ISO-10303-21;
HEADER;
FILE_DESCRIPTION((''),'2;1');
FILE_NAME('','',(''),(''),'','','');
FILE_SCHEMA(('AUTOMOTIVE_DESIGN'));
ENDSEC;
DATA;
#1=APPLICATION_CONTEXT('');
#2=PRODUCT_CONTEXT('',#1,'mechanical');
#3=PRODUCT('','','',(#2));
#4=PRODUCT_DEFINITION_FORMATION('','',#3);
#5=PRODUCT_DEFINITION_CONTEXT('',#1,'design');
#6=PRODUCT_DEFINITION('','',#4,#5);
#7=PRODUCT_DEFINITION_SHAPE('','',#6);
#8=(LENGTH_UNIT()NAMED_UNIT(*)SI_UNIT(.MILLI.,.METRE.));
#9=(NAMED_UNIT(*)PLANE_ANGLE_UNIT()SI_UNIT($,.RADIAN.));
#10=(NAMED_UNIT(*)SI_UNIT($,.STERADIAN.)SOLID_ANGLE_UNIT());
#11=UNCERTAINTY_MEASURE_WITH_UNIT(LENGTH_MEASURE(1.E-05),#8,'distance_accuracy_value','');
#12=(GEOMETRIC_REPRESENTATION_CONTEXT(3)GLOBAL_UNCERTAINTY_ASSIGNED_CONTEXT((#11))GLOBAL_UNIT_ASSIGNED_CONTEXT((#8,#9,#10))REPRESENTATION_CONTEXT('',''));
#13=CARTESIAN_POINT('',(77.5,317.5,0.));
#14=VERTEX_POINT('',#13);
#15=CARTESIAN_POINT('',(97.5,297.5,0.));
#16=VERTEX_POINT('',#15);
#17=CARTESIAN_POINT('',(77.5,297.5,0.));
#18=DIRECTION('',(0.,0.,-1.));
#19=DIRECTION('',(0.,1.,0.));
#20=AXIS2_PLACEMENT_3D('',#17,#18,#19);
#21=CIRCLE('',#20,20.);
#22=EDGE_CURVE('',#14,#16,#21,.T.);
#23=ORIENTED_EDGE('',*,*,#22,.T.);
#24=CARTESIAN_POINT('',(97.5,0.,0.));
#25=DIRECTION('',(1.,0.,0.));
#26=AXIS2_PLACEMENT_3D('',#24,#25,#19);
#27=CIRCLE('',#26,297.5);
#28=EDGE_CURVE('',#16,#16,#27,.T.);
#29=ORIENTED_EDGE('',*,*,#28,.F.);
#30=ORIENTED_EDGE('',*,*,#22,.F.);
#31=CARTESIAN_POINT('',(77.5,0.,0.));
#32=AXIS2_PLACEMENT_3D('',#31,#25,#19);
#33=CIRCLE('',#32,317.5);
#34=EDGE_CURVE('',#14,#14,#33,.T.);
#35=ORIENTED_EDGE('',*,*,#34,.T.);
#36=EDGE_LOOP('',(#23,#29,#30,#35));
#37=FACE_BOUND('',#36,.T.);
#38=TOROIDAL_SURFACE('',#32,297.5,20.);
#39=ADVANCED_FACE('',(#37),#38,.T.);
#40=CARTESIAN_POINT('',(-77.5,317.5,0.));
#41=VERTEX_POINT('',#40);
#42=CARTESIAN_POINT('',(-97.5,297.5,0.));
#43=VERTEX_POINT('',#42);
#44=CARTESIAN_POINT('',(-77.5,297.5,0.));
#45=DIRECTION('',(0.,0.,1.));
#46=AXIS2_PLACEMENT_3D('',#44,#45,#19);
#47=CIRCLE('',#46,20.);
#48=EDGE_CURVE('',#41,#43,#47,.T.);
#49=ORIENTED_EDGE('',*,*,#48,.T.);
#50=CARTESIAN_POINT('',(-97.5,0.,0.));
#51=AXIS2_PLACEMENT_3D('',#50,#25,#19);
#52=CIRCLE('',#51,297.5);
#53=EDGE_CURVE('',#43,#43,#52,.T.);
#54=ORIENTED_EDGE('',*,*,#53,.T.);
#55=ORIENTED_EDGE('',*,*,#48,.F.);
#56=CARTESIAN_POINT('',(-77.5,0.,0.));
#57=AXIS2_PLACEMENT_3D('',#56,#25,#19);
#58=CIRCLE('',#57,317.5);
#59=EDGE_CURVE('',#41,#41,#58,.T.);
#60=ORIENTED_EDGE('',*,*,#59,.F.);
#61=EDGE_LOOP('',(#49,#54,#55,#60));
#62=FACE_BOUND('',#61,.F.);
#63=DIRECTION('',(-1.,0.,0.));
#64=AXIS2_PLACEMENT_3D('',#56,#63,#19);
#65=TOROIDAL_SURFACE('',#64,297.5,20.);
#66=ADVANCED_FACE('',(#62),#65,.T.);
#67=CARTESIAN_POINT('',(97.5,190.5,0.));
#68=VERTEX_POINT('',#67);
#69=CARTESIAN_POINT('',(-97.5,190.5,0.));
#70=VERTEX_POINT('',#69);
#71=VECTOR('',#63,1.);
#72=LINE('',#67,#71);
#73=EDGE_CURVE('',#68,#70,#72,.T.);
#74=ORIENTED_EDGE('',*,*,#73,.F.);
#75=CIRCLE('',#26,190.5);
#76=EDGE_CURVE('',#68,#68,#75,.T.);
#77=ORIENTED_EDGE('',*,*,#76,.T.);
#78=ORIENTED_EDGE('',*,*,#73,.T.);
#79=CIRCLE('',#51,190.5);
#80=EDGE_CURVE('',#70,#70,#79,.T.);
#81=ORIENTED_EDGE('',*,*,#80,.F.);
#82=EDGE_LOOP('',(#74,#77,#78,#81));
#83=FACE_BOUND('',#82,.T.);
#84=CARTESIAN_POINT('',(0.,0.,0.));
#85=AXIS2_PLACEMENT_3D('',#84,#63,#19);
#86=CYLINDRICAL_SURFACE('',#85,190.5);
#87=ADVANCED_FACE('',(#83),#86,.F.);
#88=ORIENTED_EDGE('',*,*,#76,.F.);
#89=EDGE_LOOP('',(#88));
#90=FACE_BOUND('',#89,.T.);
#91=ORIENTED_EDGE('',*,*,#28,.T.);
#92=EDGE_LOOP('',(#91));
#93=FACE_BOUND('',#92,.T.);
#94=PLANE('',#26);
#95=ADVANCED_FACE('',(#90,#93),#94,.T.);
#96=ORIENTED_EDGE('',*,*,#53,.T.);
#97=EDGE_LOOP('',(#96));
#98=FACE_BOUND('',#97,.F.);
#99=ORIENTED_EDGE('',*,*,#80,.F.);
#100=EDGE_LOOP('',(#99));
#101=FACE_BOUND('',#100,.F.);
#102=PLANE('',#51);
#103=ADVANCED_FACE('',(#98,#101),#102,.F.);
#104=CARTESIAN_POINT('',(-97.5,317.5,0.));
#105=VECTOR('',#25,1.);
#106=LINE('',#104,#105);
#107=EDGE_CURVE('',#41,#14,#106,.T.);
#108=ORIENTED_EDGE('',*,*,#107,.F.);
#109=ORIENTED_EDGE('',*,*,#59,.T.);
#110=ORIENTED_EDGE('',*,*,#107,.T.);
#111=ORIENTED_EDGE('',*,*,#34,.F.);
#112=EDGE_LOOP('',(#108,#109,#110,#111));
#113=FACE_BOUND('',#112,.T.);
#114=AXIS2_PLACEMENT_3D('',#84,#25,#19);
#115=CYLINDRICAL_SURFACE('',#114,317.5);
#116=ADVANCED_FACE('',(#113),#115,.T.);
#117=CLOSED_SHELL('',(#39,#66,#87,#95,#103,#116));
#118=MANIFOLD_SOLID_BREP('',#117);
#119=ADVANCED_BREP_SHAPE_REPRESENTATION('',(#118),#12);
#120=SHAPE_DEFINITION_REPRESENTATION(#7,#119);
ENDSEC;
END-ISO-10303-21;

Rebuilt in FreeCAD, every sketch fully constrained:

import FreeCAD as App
import Part
import Sketcher
from FreeCAD import Vector


def edges_at(feature, points):
    """Names of the edges that pass closest to the given points."""
    edges = feature.Shape.Edges
    near = lambda p: min(range(len(edges)), key=lambda i: edges[i].distToShape(Part.Vertex(*p))[0])
    return sorted({f"Edge{near(p) + 1}" for p in points})

doc = App.newDocument("Part")
body = doc.addObject("PartDesign::Body", "Body")

# Sketch on YZ plane
sketch1 = body.newObject("Sketcher::SketchObject", "Sketch")
sketch1.AttachmentSupport = (doc.getObject("YZ_Plane"), [""])
sketch1.MapMode = "FlatFace"
sketch1.addGeometry([
    Part.Circle(Vector(0, 0, 0), Vector(0, 0, 1), 318),
    Part.Circle(Vector(0, 0, 0), Vector(0, 0, 1), 190),
], False)
sketch1.addConstraint([
    Sketcher.Constraint("Coincident", 0, 3, -1, 1),
    Sketcher.Constraint("Coincident", 1, 3, -1, 1),
    Sketcher.Constraint("Diameter", 0, 635.0),
    Sketcher.Constraint("Diameter", 1, 381.0),
])
pad1 = body.newObject("PartDesign::Pad", "Pad")
pad1.Profile = sketch1
pad1.Length = 195
pad1.Midplane = True
doc.recompute()

fillet = body.newObject("PartDesign::Fillet", "Fillet")
fillet.Base = (pad1, edges_at(pad1, [(97.5, -317.5, 0), (-97.5, -317.5, 0)]))
fillet.Radius = 20

doc.recompute()
